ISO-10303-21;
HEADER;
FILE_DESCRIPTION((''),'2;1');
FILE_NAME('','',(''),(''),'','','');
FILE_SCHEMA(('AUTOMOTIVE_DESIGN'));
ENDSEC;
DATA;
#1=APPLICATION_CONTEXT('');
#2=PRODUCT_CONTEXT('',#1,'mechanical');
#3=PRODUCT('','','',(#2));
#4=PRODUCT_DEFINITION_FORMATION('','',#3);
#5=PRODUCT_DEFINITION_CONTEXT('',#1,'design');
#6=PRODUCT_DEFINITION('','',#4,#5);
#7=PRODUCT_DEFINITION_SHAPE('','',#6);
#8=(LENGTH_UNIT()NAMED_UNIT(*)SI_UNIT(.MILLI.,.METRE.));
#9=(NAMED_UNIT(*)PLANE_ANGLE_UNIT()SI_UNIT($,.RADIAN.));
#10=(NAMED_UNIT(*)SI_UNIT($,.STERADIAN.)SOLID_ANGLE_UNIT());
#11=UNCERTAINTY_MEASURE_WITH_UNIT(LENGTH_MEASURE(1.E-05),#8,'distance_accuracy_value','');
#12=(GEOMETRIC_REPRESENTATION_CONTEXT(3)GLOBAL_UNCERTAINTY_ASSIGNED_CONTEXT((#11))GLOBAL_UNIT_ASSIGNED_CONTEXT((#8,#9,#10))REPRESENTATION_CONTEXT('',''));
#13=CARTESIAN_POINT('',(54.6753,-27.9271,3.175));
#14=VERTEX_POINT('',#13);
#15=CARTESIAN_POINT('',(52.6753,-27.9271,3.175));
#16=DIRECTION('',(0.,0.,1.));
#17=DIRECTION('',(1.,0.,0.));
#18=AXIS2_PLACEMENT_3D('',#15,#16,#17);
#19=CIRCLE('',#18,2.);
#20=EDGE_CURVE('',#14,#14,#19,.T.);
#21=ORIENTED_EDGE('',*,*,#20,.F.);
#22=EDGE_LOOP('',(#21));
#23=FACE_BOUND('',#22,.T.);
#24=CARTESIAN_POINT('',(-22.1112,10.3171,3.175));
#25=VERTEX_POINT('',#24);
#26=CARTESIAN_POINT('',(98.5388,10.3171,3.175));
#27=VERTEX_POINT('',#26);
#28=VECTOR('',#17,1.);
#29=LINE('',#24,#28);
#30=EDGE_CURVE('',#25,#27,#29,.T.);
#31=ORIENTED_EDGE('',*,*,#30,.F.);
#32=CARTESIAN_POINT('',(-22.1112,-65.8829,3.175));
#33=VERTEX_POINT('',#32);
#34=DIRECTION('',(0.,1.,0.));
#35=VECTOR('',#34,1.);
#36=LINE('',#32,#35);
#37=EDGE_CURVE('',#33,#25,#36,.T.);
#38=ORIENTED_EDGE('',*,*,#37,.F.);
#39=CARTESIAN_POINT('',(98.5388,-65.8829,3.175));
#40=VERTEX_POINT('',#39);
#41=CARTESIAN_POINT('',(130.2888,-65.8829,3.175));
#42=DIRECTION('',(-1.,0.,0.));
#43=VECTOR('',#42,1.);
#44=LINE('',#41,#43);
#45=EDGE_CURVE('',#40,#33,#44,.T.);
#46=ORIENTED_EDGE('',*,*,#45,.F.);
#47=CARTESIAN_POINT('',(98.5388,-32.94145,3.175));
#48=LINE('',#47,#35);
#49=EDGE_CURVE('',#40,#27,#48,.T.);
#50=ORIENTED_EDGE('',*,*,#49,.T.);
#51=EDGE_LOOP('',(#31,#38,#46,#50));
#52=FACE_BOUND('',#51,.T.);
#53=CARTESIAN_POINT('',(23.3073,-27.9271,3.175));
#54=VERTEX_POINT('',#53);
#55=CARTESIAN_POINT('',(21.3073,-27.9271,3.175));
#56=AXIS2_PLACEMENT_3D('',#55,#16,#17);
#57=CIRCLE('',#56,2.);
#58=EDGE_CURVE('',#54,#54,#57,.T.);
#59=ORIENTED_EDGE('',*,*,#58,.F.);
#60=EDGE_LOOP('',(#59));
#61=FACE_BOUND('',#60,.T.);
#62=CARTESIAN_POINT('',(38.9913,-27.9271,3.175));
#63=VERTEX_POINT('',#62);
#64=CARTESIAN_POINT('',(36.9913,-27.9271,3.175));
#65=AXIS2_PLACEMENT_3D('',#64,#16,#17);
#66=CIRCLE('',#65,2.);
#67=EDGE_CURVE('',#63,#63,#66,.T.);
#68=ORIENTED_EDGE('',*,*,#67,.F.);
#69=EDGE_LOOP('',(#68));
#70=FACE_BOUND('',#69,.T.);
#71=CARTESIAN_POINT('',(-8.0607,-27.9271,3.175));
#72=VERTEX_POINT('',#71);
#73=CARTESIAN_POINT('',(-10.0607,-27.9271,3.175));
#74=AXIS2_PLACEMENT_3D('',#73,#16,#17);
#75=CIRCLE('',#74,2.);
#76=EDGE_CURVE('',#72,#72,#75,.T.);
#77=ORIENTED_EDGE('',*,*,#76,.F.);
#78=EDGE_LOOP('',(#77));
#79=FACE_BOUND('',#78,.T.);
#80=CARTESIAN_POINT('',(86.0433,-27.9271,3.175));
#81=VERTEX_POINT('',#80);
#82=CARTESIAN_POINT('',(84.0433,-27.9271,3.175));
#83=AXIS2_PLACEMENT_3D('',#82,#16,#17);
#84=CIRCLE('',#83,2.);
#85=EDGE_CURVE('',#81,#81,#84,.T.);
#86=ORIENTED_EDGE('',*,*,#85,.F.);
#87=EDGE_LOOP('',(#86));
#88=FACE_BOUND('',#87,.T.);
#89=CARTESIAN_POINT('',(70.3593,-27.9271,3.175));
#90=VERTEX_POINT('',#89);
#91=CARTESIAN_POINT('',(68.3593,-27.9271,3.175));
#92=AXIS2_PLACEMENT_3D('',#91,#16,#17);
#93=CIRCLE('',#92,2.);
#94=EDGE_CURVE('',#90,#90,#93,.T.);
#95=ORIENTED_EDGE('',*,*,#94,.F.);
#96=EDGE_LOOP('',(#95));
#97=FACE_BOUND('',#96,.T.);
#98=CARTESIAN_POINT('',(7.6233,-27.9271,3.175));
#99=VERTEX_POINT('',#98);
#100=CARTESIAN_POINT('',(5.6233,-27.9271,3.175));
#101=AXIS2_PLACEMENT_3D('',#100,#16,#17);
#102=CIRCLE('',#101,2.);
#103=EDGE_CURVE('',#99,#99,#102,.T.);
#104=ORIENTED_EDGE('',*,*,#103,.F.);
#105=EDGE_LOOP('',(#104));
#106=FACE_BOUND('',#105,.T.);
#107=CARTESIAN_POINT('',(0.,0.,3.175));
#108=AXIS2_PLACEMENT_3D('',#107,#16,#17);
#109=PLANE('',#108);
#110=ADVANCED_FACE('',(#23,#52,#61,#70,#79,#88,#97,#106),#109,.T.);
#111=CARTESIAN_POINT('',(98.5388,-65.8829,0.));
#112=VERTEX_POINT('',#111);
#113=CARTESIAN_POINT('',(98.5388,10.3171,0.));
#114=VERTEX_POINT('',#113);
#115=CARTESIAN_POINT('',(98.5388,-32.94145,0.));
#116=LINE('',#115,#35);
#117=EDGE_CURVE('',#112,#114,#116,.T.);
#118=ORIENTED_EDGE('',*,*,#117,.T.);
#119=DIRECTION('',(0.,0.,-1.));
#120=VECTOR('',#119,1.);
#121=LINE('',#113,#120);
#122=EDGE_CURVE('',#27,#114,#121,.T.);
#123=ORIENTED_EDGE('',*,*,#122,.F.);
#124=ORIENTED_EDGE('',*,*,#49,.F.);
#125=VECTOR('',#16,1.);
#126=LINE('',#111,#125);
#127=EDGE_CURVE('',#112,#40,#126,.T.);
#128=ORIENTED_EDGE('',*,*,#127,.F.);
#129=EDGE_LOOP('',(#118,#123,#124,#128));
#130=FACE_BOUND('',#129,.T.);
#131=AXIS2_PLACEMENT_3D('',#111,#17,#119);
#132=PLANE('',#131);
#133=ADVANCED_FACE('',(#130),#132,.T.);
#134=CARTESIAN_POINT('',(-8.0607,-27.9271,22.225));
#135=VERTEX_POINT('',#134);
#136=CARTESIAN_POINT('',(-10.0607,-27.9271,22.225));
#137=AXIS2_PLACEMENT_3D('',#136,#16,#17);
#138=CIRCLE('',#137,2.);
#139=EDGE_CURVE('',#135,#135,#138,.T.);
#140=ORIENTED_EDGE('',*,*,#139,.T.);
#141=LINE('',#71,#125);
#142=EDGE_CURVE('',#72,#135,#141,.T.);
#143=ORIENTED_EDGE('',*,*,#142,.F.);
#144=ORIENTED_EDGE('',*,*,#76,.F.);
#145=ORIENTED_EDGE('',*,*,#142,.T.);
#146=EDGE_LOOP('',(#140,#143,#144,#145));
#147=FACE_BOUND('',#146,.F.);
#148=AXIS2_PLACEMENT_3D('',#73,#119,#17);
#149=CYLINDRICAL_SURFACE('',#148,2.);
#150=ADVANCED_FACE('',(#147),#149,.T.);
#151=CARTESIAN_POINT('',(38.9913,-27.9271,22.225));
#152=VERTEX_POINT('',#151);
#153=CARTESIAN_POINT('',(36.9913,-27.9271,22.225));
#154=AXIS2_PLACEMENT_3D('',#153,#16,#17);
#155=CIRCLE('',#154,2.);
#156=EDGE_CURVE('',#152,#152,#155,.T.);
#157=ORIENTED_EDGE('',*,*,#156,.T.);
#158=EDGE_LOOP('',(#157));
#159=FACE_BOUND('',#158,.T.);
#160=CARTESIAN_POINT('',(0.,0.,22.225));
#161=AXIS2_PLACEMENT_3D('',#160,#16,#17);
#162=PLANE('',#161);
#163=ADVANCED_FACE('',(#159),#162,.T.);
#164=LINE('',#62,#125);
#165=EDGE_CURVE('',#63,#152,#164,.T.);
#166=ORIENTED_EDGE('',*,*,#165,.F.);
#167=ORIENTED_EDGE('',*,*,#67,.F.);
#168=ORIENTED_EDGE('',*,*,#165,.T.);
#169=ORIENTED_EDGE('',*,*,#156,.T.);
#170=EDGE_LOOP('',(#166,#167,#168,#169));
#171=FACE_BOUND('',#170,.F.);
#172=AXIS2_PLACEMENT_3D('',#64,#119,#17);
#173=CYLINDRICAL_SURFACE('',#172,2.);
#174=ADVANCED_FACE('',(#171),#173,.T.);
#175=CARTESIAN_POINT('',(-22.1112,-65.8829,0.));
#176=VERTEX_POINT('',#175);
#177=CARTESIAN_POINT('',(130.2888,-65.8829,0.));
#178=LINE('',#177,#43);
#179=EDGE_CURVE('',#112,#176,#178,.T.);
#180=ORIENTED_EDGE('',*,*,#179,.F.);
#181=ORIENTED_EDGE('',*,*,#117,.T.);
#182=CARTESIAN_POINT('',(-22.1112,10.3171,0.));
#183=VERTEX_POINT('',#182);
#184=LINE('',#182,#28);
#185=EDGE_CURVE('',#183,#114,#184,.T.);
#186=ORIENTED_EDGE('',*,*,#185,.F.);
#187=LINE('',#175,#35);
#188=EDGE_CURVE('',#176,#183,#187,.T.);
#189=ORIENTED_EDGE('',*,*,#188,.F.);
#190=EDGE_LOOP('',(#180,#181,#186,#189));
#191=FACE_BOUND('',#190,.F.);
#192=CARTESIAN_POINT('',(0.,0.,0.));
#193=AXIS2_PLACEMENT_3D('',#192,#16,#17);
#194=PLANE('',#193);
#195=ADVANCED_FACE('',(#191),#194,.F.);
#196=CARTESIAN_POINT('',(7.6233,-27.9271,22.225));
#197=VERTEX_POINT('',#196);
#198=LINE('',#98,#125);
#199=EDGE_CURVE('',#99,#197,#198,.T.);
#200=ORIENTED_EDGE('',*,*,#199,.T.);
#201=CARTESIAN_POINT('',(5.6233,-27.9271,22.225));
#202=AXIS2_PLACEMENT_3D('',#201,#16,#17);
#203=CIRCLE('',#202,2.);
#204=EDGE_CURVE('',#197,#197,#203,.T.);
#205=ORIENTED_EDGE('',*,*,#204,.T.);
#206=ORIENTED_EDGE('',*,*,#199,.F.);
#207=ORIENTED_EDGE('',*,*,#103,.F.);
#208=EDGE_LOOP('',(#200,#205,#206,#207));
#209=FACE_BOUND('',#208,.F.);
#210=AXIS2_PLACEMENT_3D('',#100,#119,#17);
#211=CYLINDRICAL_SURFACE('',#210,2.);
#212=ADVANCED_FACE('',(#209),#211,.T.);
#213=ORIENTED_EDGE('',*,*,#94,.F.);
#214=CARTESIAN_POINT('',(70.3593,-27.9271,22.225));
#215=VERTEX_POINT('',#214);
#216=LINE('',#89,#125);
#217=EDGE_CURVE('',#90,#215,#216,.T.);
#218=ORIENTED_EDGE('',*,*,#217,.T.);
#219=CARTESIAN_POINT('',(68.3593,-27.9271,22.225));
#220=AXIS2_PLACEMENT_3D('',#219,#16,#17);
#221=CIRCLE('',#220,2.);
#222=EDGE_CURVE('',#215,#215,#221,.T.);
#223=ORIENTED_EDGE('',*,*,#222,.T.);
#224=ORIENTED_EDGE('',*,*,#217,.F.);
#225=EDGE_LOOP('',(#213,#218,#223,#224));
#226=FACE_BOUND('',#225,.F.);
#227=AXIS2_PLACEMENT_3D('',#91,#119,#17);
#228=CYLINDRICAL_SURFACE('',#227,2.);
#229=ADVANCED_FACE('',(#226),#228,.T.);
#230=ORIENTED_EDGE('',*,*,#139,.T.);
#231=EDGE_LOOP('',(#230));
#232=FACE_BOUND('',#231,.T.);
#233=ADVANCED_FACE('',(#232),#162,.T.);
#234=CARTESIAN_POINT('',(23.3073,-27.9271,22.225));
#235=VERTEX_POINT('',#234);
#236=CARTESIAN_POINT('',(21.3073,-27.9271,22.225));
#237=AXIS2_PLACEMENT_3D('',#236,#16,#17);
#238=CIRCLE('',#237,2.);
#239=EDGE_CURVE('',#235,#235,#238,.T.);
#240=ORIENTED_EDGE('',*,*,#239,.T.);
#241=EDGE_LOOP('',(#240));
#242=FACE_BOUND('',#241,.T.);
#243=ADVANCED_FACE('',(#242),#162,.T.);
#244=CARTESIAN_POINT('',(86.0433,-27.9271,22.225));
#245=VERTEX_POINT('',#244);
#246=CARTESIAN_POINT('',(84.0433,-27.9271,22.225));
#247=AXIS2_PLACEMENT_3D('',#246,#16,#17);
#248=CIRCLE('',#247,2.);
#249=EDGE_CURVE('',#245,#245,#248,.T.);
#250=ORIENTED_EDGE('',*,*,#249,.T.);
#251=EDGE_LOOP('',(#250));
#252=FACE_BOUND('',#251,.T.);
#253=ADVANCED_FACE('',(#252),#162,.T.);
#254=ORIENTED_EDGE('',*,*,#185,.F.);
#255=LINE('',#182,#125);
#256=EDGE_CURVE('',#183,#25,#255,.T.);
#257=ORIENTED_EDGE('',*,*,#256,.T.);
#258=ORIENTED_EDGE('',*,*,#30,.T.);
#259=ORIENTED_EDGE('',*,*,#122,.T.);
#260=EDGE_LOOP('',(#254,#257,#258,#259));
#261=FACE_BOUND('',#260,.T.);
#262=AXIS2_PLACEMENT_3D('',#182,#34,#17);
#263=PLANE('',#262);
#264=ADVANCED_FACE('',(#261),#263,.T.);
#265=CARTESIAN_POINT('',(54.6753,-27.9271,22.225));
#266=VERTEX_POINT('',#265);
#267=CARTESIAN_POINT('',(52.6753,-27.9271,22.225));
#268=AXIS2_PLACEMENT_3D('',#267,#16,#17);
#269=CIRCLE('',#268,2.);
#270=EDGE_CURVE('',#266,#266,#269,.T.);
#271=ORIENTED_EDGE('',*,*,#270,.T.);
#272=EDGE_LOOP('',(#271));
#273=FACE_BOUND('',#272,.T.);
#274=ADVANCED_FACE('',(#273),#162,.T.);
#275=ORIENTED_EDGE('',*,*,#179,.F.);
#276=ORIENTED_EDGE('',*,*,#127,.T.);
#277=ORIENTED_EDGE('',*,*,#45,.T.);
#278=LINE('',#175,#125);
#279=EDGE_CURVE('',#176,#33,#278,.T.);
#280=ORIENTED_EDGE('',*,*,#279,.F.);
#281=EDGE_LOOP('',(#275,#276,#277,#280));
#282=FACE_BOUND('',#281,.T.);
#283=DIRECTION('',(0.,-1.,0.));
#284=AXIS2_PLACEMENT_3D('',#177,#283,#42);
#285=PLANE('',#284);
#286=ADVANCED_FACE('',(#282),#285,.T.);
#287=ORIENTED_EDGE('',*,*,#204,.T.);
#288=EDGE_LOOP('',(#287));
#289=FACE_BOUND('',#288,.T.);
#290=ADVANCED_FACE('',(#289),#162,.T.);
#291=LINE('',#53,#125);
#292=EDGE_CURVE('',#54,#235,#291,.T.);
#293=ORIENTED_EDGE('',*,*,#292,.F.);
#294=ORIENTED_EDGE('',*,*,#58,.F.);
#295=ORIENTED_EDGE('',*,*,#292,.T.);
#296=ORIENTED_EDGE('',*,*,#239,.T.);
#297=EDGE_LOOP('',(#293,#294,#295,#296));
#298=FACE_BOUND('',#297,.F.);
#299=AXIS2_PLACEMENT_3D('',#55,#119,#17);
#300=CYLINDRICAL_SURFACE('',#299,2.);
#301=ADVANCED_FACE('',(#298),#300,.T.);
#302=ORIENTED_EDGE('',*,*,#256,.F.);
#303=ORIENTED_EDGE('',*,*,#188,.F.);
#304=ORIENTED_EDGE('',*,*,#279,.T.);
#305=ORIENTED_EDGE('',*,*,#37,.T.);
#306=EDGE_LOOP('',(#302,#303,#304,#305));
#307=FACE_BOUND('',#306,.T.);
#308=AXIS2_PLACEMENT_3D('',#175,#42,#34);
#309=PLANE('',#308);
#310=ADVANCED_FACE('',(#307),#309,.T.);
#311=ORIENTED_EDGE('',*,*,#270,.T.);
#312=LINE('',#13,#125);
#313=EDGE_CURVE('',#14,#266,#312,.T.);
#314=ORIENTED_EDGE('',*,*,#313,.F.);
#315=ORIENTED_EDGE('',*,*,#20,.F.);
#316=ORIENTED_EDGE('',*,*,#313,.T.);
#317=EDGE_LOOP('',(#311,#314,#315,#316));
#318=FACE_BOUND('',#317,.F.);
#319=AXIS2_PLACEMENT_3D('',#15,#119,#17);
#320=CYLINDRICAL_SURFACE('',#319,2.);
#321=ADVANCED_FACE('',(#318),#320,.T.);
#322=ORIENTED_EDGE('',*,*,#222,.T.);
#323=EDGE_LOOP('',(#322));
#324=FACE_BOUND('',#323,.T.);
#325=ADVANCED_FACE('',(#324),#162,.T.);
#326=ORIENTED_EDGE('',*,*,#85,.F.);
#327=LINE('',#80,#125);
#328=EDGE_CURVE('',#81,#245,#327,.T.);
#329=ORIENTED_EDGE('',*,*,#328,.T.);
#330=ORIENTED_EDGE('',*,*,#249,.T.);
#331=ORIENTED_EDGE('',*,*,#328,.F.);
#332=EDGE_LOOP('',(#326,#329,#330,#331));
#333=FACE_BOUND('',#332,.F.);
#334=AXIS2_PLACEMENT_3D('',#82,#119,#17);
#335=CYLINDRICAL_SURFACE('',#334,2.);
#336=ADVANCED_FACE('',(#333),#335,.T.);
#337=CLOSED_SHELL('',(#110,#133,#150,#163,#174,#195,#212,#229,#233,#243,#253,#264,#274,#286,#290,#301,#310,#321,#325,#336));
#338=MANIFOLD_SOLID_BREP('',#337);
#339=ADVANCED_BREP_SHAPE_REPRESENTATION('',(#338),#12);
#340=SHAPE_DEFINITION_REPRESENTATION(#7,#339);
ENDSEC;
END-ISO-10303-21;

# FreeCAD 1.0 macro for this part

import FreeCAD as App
import Part
import Sketcher

V = App.Vector
Q = App.Units.Quantity


def add_polygon(sketch, points):
    """Adds a closed chain of lines whose ends are joined by coincident constraints."""
    first, n = sketch.GeometryCount, len(points)
    for a, b in zip(points, points[1:] + points[:1]):
        sketch.addGeometry(Part.LineSegment(App.Vector(*a, 0), App.Vector(*b, 0)), False)
    for i in range(n):
        sketch.addConstraint(Sketcher.Constraint("Coincident", first + i, 2, first + (i + 1) % n, 1))

doc = App.newDocument("Part")
body = doc.addObject("PartDesign::Body", "Body")

# Sketch on XY plane
sketch1 = doc.addObject("Sketcher::SketchObject", "Sketch")
body.addObject(sketch1)
sketch1.AttachmentSupport = (doc.XY_Plane, [""])
sketch1.MapMode = "FlatFace"
add_polygon(sketch1, [(130.2888, 10.3171), (-22.1112, 10.3171), (-22.1112, -65.8829), (130.2888, -65.8829)])  # lines 0-3
sketch1.addConstraint(Sketcher.Constraint("Horizontal", 0))
sketch1.addConstraint(Sketcher.Constraint("Vertical", 1))
sketch1.addConstraint(Sketcher.Constraint("Horizontal", 2))
sketch1.addConstraint(Sketcher.Constraint("Vertical", 3))
sketch1.addConstraint(Sketcher.Constraint("DistanceX", 0, 2, 0, 1, Q("6 in")))
sketch1.addConstraint(Sketcher.Constraint("DistanceY", 1, 2, 1, 1, Q("3 in")))
sketch1.addConstraint(Sketcher.Constraint("DistanceX", 0, 2, -1, 1, Q("22.1112 mm")))
sketch1.addConstraint(Sketcher.Constraint("DistanceY", -1, 1, 0, 2, Q("10.317 mm")))
pad1 = doc.addObject("PartDesign::Pad", "Pad")
body.addObject(pad1)
pad1.Profile = sketch1
pad1.Length = Q("0.125 in")

# Sketch on XY plane
sketch2 = doc.addObject("Sketcher::SketchObject", "Sketch001")
body.addObject(sketch2)
sketch2.AttachmentSupport = (doc.XY_Plane, [""])
sketch2.MapMode = "FlatFace"
sketch2.AttachmentOffset = App.Placement(V(0, 0, 0.125 * 25.4), App.Rotation())
sketch2.addGeometry(Part.Circle(V(-10.0607, -27.9271, 0), V(0, 0, 1), 2), False)
sketch2.addGeometry(Part.Circle(V(5.6233, -27.9271, 0), V(0, 0, 1), 2), False)
sketch2.addGeometry(Part.Circle(V(21.3073, -27.9271, 0), V(0, 0, 1), 2), False)
sketch2.addGeometry(Part.Circle(V(36.9913, -27.9271, 0), V(0, 0, 1), 2), False)
sketch2.addGeometry(Part.Circle(V(52.6753, -27.9271, 0), V(0, 0, 1), 2), False)
sketch2.addGeometry(Part.Circle(V(68.3593, -27.9271, 0), V(0, 0, 1), 2), False)
sketch2.addGeometry(Part.Circle(V(84.0433, -27.9271, 0), V(0, 0, 1), 2), False)
sketch2.addConstraint(Sketcher.Constraint("Equal", 0, 1))
sketch2.addConstraint(Sketcher.Constraint("Equal", 1, 2))
sketch2.addConstraint(Sketcher.Constraint("Equal", 2, 3))
sketch2.addConstraint(Sketcher.Constraint("Equal", 3, 4))
sketch2.addConstraint(Sketcher.Constraint("Equal", 4, 5))
sketch2.addConstraint(Sketcher.Constraint("Equal", 5, 6))
sketch2.addConstraint(Sketcher.Constraint("Horizontal", 0, 3, 1, 3))
sketch2.addConstraint(Sketcher.Constraint("Horizontal", 1, 3, 2, 3))
sketch2.addConstraint(Sketcher.Constraint("Horizontal", 2, 3, 3, 3))
sketch2.addConstraint(Sketcher.Constraint("Horizontal", 3, 3, 4, 3))
sketch2.addConstraint(Sketcher.Constraint("Horizontal", 4, 3, 5, 3))
sketch2.addConstraint(Sketcher.Constraint("Horizontal", 5, 3, 6, 3))
sketch2.addConstraint(Sketcher.Constraint("Diameter", 0, Q("4 mm")))
sketch2.addConstraint(Sketcher.Constraint("DistanceX", 0, 3, -1, 1, Q("0.3961 in")))
sketch2.addConstraint(Sketcher.Constraint("DistanceY", 0, 3, -1, 1, Q("1.0995 in")))
sketch2.addConstraint(Sketcher.Constraint("DistanceX", -1, 1, 1, 3, Q("0.2214 in")))
sketch2.addConstraint(Sketcher.Constraint("DistanceX", -1, 1, 5, 3, Q("2.6913 in")))
sketch2.addConstraint(Sketcher.Constraint("DistanceX", -1, 1, 6, 3, Q("3.3088 in")))
sketch2.addConstraint(Sketcher.Constraint("DistanceX", -1, 1, 2, 3, Q("21.3073 mm")))
sketch2.addConstraint(Sketcher.Constraint("DistanceX", -1, 1, 3, 3, Q("36.9913 mm")))
sketch2.addConstraint(Sketcher.Constraint("DistanceX", -1, 1, 4, 3, Q("52.6753 mm")))
pad2 = doc.addObject("PartDesign::Pad", "Pad001")
body.addObject(pad2)
pad2.Profile = sketch2
pad2.Length = Q("0.75 in")

# Sketch on YZ plane
sketch3 = doc.addObject("Sketcher::SketchObject", "Sketch002")
body.addObject(sketch3)
sketch3.AttachmentSupport = (doc.YZ_Plane, [""])
sketch3.MapMode = "FlatFace"
sketch3.AttachmentOffset = App.Placement(V(0, 0, 130.2888), App.Rotation())
add_polygon(sketch3, [(17.2859, -7.2167), (17.2859, 11.1509), (-71.3855, 11.1509), (-71.3855, -7.2167)])  # lines 0-3
sketch3.addConstraint(Sketcher.Constraint("Vertical", 0))
sketch3.addConstraint(Sketcher.Constraint("Horizontal", 1))
sketch3.addConstraint(Sketcher.Constraint("Vertical", 2))
sketch3.addConstraint(Sketcher.Constraint("Horizontal", 3))
sketch3.addConstraint(Sketcher.Constraint("DistanceX", 1, 2, 1, 1, Q("3.491 in")))
sketch3.addConstraint(Sketcher.Constraint("DistanceY", -1, 1, 0, 2, Q("0.439 in")))
sketch3.addConstraint(Sketcher.Constraint("DistanceY", 0, 1, 0, 2, Q("18.3676 mm")))
sketch3.addConstraint(Sketcher.Constraint("DistanceX", -1, 1, 0, 2, Q("17.286 mm")))
pocket1 = doc.addObject("PartDesign::Pocket", "Pocket")
body.addObject(pocket1)
pocket1.Profile = sketch3
pocket1.Length = Q("1.25 in")

doc.recompute()
